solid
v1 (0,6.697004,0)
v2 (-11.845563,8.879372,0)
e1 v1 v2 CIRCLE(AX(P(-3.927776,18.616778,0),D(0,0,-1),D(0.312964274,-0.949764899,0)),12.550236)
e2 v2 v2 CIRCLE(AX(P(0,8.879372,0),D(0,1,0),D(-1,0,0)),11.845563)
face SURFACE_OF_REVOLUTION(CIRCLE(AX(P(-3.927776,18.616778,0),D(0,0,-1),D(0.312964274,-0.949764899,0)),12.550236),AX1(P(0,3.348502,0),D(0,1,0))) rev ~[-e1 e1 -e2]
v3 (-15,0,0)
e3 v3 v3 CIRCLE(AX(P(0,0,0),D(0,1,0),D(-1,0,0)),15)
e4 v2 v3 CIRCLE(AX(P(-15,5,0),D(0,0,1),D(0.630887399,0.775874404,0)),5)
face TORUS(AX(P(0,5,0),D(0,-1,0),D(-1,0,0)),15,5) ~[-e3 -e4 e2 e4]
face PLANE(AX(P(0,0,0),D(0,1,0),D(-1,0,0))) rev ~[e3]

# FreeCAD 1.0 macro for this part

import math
import FreeCAD as App
import Part
import Sketcher
Q = App.Units.Quantity

doc = App.newDocument("Part")
body = doc.addObject("PartDesign::Body", "Body")

# Sketch on XY plane
sketch1 = body.newObject("Sketcher::SketchObject", "Sketch")
sketch1.AttachmentSupport = (doc.getObject("XY_Plane"), [""])
sketch1.MapMode = "FlatFace"
sketch1.addGeometry(Part.ArcOfCircle(Part.Circle(App.Vector(-3.927776, 18.616778, 0), App.Vector(0, 0, 1), 12.550236), math.radians(-129.115632), math.radians(-71.762037)), False)
sketch1.addGeometry(Part.ArcOfCircle(Part.Circle(App.Vector(-15, 5, 0), App.Vector(0, 0, 1), 5), math.radians(50.884376), math.radians(270)), False)
sketch1.addGeometry(Part.LineSegment(App.Vector(-15, 0, 0), App.Vector(0, 0, 0)), False)
sketch1.addGeometry(Part.LineSegment(App.Vector(0, 0, 0), App.Vector(0, 6.697004, 0)), False)
sketch1.addConstraint(Sketcher.Constraint("Tangent", 0, 1, 1, 1))
sketch1.addConstraint(Sketcher.Constraint("Tangent", 1, 2, 2, 1))
sketch1.addConstraint(Sketcher.Constraint("Coincident", 2, 2, 3, 1))
sketch1.addConstraint(Sketcher.Constraint("Coincident", 3, 2, 0, 2))
sketch1.addConstraint(Sketcher.Constraint("Horizontal", 2))
sketch1.addConstraint(Sketcher.Constraint("Vertical", 3))
sketch1.addConstraint(Sketcher.Constraint("Coincident", 2, 2, -1, 1))
sketch1.addConstraint(Sketcher.Constraint("Radius", 1, Q("5 mm")))
sketch1.addConstraint(Sketcher.Constraint("DistanceX", 2, 1, 2, 2, Q("15 mm")))
sketch1.addConstraint(Sketcher.Constraint("Radius", 0, Q("12.550236 mm")))
sketch1.addConstraint(Sketcher.Constraint("DistanceY", 3, 1, 3, 2, Q("6.697004 mm")))
revolution = body.newObject("PartDesign::Revolution", "Revolution")
revolution.Profile = sketch1
revolution.ReferenceAxis = (sketch1, ["V_Axis"])
revolution.Angle = 360

doc.recompute()
